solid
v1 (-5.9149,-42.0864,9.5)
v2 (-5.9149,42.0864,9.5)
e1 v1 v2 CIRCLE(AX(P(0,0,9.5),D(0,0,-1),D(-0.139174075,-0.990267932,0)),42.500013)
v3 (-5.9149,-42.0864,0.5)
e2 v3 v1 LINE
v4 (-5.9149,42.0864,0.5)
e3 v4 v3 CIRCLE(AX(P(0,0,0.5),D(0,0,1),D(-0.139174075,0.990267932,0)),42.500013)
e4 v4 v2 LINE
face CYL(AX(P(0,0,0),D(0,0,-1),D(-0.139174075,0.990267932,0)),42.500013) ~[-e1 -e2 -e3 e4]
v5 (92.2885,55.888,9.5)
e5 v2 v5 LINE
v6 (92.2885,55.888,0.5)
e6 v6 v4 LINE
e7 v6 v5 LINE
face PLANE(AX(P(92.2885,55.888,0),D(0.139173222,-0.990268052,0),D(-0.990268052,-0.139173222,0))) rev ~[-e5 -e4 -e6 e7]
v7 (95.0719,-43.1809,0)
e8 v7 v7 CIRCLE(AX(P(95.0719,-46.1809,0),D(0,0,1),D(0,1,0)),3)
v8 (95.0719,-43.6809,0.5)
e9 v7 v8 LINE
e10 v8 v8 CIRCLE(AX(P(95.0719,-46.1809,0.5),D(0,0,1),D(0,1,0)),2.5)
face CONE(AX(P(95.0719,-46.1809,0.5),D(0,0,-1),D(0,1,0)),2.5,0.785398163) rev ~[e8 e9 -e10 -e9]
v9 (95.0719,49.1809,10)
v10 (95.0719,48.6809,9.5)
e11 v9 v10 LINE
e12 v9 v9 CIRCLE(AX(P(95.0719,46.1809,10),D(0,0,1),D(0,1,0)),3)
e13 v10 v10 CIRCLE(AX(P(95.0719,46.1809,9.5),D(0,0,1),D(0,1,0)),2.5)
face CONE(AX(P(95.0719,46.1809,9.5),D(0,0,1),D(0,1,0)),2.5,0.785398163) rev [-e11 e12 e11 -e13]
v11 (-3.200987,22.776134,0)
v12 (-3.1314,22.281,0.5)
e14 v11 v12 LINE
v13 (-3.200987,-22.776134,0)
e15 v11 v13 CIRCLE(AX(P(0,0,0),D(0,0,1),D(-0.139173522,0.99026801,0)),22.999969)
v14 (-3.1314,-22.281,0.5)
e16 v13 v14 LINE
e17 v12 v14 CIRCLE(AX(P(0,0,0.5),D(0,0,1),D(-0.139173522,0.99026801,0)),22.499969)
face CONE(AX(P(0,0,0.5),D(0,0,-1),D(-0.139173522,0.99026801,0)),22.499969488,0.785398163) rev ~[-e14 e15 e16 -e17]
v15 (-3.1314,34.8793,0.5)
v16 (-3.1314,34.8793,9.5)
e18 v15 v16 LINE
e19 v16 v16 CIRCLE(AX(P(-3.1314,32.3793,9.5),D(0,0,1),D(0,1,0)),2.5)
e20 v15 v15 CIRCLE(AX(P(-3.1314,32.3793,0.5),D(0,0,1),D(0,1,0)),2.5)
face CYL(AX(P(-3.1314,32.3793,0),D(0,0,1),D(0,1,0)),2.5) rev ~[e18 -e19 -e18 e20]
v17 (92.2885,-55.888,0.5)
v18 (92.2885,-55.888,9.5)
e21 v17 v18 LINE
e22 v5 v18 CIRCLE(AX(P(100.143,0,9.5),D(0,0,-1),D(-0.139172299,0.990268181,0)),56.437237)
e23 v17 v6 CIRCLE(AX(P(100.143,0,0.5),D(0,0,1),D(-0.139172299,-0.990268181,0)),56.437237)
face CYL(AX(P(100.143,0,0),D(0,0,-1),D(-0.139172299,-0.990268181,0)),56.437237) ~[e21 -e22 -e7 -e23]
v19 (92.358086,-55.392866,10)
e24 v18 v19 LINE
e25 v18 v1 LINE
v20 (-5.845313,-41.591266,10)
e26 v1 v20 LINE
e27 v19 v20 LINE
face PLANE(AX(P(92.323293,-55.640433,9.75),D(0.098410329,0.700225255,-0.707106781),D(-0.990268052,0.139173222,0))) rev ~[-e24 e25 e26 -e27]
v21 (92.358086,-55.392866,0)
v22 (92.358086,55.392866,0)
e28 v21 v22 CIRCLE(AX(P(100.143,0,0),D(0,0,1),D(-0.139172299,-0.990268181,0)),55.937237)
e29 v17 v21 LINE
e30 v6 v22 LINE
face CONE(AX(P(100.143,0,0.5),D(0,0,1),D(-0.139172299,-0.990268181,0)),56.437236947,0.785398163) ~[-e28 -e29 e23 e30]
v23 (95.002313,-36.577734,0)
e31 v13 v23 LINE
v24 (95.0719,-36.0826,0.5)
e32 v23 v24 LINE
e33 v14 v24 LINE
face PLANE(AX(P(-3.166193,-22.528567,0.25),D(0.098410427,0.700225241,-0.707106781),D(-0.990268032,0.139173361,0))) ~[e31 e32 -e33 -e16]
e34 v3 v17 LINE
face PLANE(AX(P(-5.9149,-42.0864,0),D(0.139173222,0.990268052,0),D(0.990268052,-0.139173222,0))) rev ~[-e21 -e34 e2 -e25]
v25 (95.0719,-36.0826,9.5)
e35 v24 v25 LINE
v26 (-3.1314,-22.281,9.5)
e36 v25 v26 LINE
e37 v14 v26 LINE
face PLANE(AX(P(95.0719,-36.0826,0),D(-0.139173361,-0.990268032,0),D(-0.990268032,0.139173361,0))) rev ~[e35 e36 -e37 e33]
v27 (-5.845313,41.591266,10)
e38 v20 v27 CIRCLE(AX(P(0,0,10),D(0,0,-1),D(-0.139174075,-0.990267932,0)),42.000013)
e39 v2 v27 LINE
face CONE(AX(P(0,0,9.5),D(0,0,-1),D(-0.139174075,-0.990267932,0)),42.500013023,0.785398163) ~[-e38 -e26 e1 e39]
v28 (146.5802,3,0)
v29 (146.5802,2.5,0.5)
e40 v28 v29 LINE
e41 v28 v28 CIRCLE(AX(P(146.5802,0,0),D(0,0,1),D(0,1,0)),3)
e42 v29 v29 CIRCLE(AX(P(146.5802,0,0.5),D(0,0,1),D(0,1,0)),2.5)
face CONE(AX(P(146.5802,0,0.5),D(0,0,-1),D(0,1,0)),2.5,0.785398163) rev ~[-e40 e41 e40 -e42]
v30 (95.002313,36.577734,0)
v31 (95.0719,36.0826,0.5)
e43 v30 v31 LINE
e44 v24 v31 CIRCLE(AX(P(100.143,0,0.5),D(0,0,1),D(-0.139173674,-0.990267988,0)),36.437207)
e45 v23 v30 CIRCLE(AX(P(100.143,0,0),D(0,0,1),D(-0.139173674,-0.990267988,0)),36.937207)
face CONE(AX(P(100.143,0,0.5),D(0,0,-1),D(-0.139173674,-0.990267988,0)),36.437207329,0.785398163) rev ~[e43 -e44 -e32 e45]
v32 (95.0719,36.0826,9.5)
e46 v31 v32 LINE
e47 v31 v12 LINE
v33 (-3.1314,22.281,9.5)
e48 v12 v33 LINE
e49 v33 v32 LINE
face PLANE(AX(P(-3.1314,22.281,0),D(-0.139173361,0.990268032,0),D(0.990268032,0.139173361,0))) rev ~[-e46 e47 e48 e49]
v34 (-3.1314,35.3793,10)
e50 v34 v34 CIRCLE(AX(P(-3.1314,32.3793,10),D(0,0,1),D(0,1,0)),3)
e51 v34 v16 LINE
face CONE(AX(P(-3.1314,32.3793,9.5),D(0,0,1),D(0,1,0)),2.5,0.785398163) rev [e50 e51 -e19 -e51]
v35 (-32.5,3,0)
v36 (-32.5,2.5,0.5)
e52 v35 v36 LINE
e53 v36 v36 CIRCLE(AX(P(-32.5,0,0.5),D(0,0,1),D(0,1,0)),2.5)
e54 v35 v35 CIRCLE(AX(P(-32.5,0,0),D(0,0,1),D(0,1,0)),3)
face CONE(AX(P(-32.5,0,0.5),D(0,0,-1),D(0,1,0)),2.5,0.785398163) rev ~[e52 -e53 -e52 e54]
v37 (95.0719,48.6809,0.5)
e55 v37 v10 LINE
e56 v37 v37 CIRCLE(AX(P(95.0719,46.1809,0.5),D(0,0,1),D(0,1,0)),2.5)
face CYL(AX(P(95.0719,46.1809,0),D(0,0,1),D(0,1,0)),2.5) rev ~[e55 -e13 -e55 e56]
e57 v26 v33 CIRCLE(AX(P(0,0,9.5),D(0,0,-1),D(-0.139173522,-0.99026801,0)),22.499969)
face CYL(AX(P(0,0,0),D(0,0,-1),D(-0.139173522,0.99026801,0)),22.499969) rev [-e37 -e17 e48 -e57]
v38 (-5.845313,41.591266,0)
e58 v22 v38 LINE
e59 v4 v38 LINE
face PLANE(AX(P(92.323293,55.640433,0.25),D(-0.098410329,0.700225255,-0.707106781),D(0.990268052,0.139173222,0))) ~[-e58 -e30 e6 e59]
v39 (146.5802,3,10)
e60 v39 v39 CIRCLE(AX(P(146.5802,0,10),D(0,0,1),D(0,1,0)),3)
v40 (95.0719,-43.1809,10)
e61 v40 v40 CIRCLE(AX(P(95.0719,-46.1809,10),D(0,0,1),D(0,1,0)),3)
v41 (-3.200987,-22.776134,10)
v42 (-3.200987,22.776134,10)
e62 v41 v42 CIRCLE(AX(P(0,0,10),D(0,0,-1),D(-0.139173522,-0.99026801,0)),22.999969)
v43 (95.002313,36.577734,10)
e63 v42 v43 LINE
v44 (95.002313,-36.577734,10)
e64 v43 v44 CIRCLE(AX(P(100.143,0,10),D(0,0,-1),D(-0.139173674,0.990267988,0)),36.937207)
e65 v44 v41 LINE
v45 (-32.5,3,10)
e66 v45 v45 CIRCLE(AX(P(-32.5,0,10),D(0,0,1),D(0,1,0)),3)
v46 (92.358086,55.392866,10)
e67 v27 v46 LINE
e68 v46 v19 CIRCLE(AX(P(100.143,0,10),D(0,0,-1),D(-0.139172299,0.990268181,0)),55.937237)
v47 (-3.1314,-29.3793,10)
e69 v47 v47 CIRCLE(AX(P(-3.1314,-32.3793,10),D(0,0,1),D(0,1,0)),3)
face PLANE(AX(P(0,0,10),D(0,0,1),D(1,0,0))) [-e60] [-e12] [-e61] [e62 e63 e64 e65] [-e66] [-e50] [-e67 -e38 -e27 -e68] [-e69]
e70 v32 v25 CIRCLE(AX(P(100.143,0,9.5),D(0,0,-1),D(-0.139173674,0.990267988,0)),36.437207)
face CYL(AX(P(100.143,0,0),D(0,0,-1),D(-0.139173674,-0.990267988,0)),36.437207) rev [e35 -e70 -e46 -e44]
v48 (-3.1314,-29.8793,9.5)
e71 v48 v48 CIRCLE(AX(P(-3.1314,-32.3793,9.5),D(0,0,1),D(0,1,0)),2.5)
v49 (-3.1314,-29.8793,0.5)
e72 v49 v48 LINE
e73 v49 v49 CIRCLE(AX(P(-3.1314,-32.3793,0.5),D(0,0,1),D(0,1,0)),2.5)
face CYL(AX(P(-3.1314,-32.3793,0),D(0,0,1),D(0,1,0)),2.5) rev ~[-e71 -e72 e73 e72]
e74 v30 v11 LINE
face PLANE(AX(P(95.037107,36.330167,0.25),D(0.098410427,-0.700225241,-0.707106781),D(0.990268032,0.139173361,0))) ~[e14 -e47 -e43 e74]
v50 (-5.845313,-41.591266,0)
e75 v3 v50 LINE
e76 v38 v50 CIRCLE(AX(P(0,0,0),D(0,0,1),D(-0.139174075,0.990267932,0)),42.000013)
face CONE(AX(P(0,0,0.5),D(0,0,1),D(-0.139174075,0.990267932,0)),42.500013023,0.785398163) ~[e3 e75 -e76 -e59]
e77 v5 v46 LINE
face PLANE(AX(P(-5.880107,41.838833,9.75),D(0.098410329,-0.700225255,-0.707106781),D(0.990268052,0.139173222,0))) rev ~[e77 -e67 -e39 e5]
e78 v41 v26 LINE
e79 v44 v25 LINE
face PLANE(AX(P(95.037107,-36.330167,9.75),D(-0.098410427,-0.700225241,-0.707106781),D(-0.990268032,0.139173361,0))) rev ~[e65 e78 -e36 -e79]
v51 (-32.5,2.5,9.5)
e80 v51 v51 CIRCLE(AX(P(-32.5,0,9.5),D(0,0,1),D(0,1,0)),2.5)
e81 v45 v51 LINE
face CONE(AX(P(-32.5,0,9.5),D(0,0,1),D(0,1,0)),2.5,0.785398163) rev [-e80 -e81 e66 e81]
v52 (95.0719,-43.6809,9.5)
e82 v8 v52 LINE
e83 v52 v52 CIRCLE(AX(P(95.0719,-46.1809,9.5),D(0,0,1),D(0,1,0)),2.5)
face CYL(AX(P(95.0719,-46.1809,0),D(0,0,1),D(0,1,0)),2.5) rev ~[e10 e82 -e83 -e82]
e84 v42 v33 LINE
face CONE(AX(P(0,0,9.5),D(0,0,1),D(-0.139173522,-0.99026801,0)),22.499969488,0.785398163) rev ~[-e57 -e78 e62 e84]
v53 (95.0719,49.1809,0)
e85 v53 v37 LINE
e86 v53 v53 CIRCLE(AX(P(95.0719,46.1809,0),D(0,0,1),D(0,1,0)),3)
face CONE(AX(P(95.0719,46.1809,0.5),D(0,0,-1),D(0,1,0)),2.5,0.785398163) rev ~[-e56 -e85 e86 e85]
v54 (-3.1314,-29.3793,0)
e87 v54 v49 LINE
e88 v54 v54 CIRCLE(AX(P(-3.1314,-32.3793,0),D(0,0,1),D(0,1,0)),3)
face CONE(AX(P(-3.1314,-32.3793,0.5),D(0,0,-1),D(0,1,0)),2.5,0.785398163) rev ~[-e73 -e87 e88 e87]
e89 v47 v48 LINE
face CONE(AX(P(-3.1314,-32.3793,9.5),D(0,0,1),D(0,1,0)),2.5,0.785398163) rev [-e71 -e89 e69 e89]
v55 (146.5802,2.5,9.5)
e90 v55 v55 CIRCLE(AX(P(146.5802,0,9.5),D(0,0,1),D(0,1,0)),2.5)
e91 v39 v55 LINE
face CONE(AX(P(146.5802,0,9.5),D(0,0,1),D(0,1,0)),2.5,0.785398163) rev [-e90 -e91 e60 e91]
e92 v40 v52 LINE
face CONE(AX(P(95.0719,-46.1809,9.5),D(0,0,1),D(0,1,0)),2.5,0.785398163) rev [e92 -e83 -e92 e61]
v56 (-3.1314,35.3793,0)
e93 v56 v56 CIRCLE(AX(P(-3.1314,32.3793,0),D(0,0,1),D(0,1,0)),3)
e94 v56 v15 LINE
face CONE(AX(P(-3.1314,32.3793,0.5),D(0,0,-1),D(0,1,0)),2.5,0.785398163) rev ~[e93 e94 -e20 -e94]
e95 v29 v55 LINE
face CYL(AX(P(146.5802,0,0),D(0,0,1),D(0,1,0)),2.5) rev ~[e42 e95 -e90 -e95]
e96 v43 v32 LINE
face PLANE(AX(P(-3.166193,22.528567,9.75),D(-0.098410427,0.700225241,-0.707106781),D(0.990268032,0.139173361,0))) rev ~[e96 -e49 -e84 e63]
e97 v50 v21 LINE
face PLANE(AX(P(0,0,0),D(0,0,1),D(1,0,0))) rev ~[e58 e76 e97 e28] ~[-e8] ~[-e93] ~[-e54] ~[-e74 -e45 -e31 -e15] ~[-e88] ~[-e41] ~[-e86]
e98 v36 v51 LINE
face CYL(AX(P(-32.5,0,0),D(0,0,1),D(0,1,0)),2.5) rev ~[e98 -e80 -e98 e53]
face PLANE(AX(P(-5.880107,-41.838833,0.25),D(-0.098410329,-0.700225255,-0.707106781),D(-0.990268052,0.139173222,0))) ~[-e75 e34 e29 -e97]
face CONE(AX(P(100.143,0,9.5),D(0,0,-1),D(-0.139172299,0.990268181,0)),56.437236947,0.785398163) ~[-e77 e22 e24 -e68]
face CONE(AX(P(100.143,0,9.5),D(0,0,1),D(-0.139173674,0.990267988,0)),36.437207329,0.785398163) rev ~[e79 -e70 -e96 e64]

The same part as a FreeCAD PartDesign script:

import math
import FreeCAD as App
import Part
import Sketcher
from FreeCAD import Vector
Q = App.Units.Quantity


def edges_at(feature, points):
    """Names of the edges that pass closest to the given points."""
    edges = feature.Shape.Edges
    near = lambda p: min(range(len(edges)), key=lambda i: edges[i].distToShape(Part.Vertex(*p))[0])
    return sorted({f"Edge{near(p) + 1}" for p in points})

doc = App.newDocument("Part")
body = doc.addObject("PartDesign::Body", "Body")

# Sketch on XY plane
sketch1 = body.newObject("Sketcher::SketchObject", "Sketch")
sketch1.AttachmentSupport = (doc.getObject("XY_Plane"), [""])
sketch1.MapMode = "FlatFace"
sketch1.addGeometry(Part.LineSegment(Vector(92, 56, 0), Vector(-6, 42, 0)), False)
sketch1.addGeometry(Part.ArcOfCircle(Part.Circle(Vector(0, 0, 0), Vector(0, 0, 1), 43), math.radians(98), math.radians(262)), False)
sketch1.addGeometry(Part.LineSegment(Vector(-6, -42, 0), Vector(92, -56, 0)), False)
sketch1.addGeometry(Part.ArcOfCircle(Part.Circle(Vector(100, 0, 0), Vector(0, 0, 1), 56), math.radians(-98), math.radians(98)), False)
sketch1.addGeometry(Part.ArcOfCircle(Part.Circle(Vector(100, 0, 0), Vector(0, 0, 1), 36), math.radians(-98), math.radians(98)), False)
sketch1.addGeometry(Part.LineSegment(Vector(95, -36, 0), Vector(-3, -22, 0)), False)
sketch1.addGeometry(Part.ArcOfCircle(Part.Circle(Vector(0, 0, 0), Vector(0, 0, 1), 22), math.radians(98), math.radians(262)), False)
sketch1.addGeometry(Part.LineSegment(Vector(-3, 22, 0), Vector(95, 36, 0)), False)
sketch1.addConstraint(Sketcher.Constraint("Tangent", 0, 2, 1, 1))
sketch1.addConstraint(Sketcher.Constraint("Tangent", 1, 2, 2, 1))
sketch1.addConstraint(Sketcher.Constraint("Tangent", 2, 2, 3, 1))
sketch1.addConstraint(Sketcher.Constraint("Tangent", 3, 2, 0, 1))
sketch1.addConstraint(Sketcher.Constraint("Tangent", 4, 1, 5, 1))
sketch1.addConstraint(Sketcher.Constraint("Tangent", 5, 2, 6, 2))
sketch1.addConstraint(Sketcher.Constraint("Tangent", 6, 1, 7, 1))
sketch1.addConstraint(Sketcher.Constraint("Tangent", 7, 2, 4, 2))
sketch1.addConstraint(Sketcher.Constraint("Coincident", 1, 3, -1, 1))
sketch1.addConstraint(Sketcher.Constraint("Coincident", 6, 3, -1, 1))
sketch1.addConstraint(Sketcher.Constraint("Coincident", 4, 3, 3, 3))
sketch1.addConstraint(Sketcher.Constraint("PointOnObject", 3, 3, -1))
sketch1.addConstraint(Sketcher.Constraint("Parallel", 2, 5))
sketch1.addConstraint(Sketcher.Constraint("Radius", 1, 42.5))
sketch1.addConstraint(Sketcher.Constraint("Angle", 2, Q("-8 deg")))
sketch1.addConstraint(Sketcher.Constraint("Radius", 6, 22.5))
sketch1.addConstraint(Sketcher.Constraint("DistanceX", -1, 1, 3, 3, 100.143))
pad1 = body.newObject("PartDesign::Pad", "Pad")
pad1.Profile = sketch1
pad1.Length = 10

# Sketch on XY plane
sketch2 = body.newObject("Sketcher::SketchObject", "Sketch001")
sketch2.AttachmentSupport = (doc.getObject("XY_Plane"), [""])
sketch2.MapMode = "FlatFace"
sketch2.addGeometry(Part.Circle(Vector(-32.5, 0, 0), Vector(0, 0, 1), 2.5), False)
sketch2.addGeometry(Part.Circle(Vector(-3.1, 32.4, 0), Vector(0, 0, 1), 2.5), False)
sketch2.addGeometry(Part.Circle(Vector(95.1, 46.2, 0), Vector(0, 0, 1), 2.5), False)
sketch2.addGeometry(Part.Circle(Vector(146.6, 0, 0), Vector(0, 0, 1), 2.5), False)
sketch2.addGeometry(Part.Circle(Vector(95.1, -46.2, 0), Vector(0, 0, 1), 2.5), False)
sketch2.addGeometry(Part.Circle(Vector(-3.1, -32.4, 0), Vector(0, 0, 1), 2.5), False)
sketch2.addConstraint(Sketcher.Constraint("Equal", 0, 1))
sketch2.addConstraint(Sketcher.Constraint("Equal", 1, 2))
sketch2.addConstraint(Sketcher.Constraint("Equal", 2, 3))
sketch2.addConstraint(Sketcher.Constraint("Equal", 3, 4))
sketch2.addConstraint(Sketcher.Constraint("Equal", 4, 5))
sketch2.addConstraint(Sketcher.Constraint("Symmetric", 2, 3, 4, 3, -1))
sketch2.addConstraint(Sketcher.Constraint("Symmetric", 1, 3, 5, 3, -1))
sketch2.addConstraint(Sketcher.Constraint("PointOnObject", 0, 3, -1))
sketch2.addConstraint(Sketcher.Constraint("PointOnObject", 3, 3, -1))
sketch2.addConstraint(Sketcher.Constraint("Diameter", 0, 5.0))
sketch2.addConstraint(Sketcher.Constraint("DistanceX", 0, 3, -1, 1, 32.5))
sketch2.addConstraint(Sketcher.Constraint("DistanceX", -1, 1, 2, 3, 95.072))
sketch2.addConstraint(Sketcher.Constraint("DistanceY", -1, 1, 2, 3, 46.181))
sketch2.addConstraint(Sketcher.Constraint("DistanceX", 1, 3, -1, 1, 3.1314))
sketch2.addConstraint(Sketcher.Constraint("DistanceY", -1, 1, 1, 3, 32.3793))
sketch2.addConstraint(Sketcher.Constraint("DistanceX", -1, 1, 3, 3, 146.5802))
doc.recompute()
hole = body.newObject("PartDesign::Hole", "Hole")
hole.Profile = sketch2
hole.ThreadType = "None"
hole.Diameter = 5
hole.DepthType = "ThroughAll"
hole.Reversed = True
doc.recompute()

chamfer = body.newObject("PartDesign::Chamfer", "Chamfer")
chamfer.Base = (hole, edges_at(hole, [
    (136.58, 0, 10),
    (45.97, -29.182, 10),
    (-22.5, 0, 10),
    (45.97, 29.182, 10),
    (136.58, 0, 0),
    (45.97, -29.182, 0),
    (-22.5, 0, 0),
    (45.97, 29.182, 0),
    (-3.131, -34.879, 0),
    (-32.5, -2.5, 0),
    (95.072, -48.681, 0),
    (146.58, -2.5, 0),
    (-3.131, 29.879, 0),
    (95.072, 43.681, 0),
    (-3.131, -34.879, 10),
    (-32.5, -2.5, 10),
    (95.072, -48.681, 10),
    (146.58, -2.5, 10),
    (-3.131, 29.879, 10),
    (95.072, 43.681, 10),
    (156.58, 0, 0),
    (43.187, 48.987, 0),
    (-42.5, 0, 0),
    (43.187, -48.987, 0),
    (156.58, 0, 10),
    (43.187, 48.987, 10),
    (-42.5, 0, 10),
    (43.187, -48.987, 10),
]))
chamfer.Size = 0.5

doc.recompute()
